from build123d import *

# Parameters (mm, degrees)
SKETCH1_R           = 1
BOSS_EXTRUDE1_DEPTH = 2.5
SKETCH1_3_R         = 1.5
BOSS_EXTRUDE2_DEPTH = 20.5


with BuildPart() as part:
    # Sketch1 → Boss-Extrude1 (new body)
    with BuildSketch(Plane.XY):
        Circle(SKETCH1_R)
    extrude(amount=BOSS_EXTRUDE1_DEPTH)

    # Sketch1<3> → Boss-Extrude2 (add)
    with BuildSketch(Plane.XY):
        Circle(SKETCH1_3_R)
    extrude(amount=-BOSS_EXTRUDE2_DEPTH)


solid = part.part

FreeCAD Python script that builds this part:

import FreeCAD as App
import Part
import Sketcher

doc = App.newDocument("Part")
body = doc.addObject("PartDesign::Body", "Body")

sketch1 = body.newObject("Sketcher::SketchObject", "Sketch")
sketch1.AttachmentSupport = (doc.getObject("XY_Plane"), [""])
sketch1.MapMode = "FlatFace"
sketch1.addGeometry(Part.Circle(App.Vector(0, 0, 0), App.Vector(0, 0, 1), 1), False)
sketch1.addConstraint([
    Sketcher.Constraint("Coincident", 0, 3, -1, 1),
    Sketcher.Constraint("Diameter", 0, 2.0),
])
pad1 = body.newObject("PartDesign::Pad", "Pad")
pad1.Profile = sketch1
pad1.Length = 2.5

sketch2 = body.newObject("Sketcher::SketchObject", "Sketch001")
sketch2.AttachmentSupport = (doc.getObject("XY_Plane"), [""])
sketch2.MapMode = "FlatFace"
sketch2.addGeometry(Part.Circle(App.Vector(0, 0, 0), App.Vector(0, 0, 1), 1.5), False)
sketch2.addConstraint([
    Sketcher.Constraint("Coincident", 0, 3, -1, 1),
    Sketcher.Constraint("Diameter", 0, 3.0),
])
pad2 = body.newObject("PartDesign::Pad", "Pad001")
pad2.Profile = sketch2
pad2.Length = 20.5
pad2.Reversed = True

doc.recompute()
